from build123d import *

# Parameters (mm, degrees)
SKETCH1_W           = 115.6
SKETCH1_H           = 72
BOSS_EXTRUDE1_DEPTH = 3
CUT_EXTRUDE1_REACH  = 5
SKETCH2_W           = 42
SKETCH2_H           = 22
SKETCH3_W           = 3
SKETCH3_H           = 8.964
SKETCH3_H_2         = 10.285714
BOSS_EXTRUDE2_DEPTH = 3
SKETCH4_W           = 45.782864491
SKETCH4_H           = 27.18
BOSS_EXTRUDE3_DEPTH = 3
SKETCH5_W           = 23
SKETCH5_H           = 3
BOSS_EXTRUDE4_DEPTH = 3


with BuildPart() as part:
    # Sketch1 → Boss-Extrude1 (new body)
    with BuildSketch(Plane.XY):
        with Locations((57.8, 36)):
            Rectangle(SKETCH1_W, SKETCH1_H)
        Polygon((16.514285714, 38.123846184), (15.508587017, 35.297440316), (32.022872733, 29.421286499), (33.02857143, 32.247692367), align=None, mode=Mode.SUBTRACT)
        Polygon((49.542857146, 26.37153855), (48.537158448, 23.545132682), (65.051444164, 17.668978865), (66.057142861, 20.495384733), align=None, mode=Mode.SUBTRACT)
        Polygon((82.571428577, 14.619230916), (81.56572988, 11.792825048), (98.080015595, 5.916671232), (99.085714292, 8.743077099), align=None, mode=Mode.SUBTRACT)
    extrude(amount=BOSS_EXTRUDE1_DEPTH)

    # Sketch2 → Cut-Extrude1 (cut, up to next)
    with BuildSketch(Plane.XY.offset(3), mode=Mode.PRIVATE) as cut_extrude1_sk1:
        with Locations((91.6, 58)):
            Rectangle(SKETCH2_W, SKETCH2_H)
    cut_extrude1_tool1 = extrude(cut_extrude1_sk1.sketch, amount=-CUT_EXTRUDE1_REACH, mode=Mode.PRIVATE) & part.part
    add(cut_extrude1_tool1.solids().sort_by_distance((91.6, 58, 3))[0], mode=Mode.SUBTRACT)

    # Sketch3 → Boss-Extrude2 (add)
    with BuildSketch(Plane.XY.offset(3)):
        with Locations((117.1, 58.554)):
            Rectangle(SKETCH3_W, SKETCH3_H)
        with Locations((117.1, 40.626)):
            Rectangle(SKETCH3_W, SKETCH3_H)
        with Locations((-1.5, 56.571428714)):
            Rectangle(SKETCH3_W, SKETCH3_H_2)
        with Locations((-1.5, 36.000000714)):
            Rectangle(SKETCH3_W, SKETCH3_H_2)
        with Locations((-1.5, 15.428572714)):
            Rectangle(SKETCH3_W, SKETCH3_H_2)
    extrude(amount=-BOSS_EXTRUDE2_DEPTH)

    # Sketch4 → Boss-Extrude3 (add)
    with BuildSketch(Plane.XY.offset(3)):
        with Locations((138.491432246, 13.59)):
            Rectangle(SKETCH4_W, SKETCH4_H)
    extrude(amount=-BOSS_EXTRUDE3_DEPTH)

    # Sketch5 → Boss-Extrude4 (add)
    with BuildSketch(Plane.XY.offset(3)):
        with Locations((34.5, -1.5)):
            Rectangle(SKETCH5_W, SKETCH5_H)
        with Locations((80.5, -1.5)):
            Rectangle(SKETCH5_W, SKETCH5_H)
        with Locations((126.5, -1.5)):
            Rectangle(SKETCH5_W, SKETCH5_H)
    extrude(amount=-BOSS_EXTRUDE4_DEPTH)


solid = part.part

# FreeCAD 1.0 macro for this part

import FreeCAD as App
import Part
import Sketcher

V = App.Vector

doc = App.newDocument("Part")
body = doc.addObject("PartDesign::Body", "Body")

# Sketch on XY plane
sketch1 = body.newObject("Sketcher::SketchObject", "Sketch")
sketch1.AttachmentSupport = (doc.getObject("XY_Plane"), [""])
sketch1.MapMode = "FlatFace"
sketch1.addGeometry([
    Part.LineSegment(V(0, 72, 0), V(0, 0, 0)),  # 0
    Part.LineSegment(V(0, 0, 0), V(115.6, 0, 0)),  # 1
    Part.LineSegment(V(115.6, 0, 0), V(115.6, 72, 0)),  # 2
    Part.LineSegment(V(115.6, 72, 0), V(0, 72, 0)),  # 3
    Part.LineSegment(V(81.6, 11.8, 0), V(82.6, 14.6, 0)),  # 4
    Part.LineSegment(V(82.6, 14.6, 0), V(99.1, 8.7, 0)),  # 5
    Part.LineSegment(V(99.1, 8.7, 0), V(98.1, 5.9, 0)),  # 6
    Part.LineSegment(V(98.1, 5.9, 0), V(81.6, 11.8, 0)),  # 7
    Part.LineSegment(V(48.5, 23.5, 0), V(49.5, 26.4, 0)),  # 8
    Part.LineSegment(V(49.5, 26.4, 0), V(66.1, 20.5, 0)),  # 9
    Part.LineSegment(V(66.1, 20.5, 0), V(65.1, 17.7, 0)),  # 10
    Part.LineSegment(V(65.1, 17.7, 0), V(48.5, 23.5, 0)),  # 11
    Part.LineSegment(V(15.5, 35.3, 0), V(16.5, 38.1, 0)),  # 12
    Part.LineSegment(V(16.5, 38.1, 0), V(33, 32.2, 0)),  # 13
    Part.LineSegment(V(33, 32.2, 0), V(32, 29.4, 0)),  # 14
    Part.LineSegment(V(32, 29.4, 0), V(15.5, 35.3, 0)),  # 15
], False)
sketch1.addConstraint([
    Sketcher.Constraint("Coincident", 0, 2, 1, 1),
    Sketcher.Constraint("Coincident", 1, 2, 2, 1),
    Sketcher.Constraint("Coincident", 2, 2, 3, 1),
    Sketcher.Constraint("Coincident", 3, 2, 0, 1),
    Sketcher.Constraint("Coincident", 4, 2, 5, 1),
    Sketcher.Constraint("Coincident", 5, 2, 6, 1),
    Sketcher.Constraint("Coincident", 6, 2, 7, 1),
    Sketcher.Constraint("Coincident", 7, 2, 4, 1),
    Sketcher.Constraint("Coincident", 8, 2, 9, 1),
    Sketcher.Constraint("Coincident", 9, 2, 10, 1),
    Sketcher.Constraint("Coincident", 10, 2, 11, 1),
    Sketcher.Constraint("Coincident", 11, 2, 8, 1),
    Sketcher.Constraint("Coincident", 12, 2, 13, 1),
    Sketcher.Constraint("Coincident", 13, 2, 14, 1),
    Sketcher.Constraint("Coincident", 14, 2, 15, 1),
    Sketcher.Constraint("Coincident", 15, 2, 12, 1),
    Sketcher.Constraint("Vertical", 0),
    Sketcher.Constraint("Horizontal", 1),
    Sketcher.Constraint("Vertical", 2),
    Sketcher.Constraint("Horizontal", 3),
    Sketcher.Constraint("Coincident", 0, 2, -1, 1),
    Sketcher.Constraint("Perpendicular", 4, 5),
    Sketcher.Constraint("Perpendicular", 5, 6),
    Sketcher.Constraint("Perpendicular", 6, 7),
    Sketcher.Constraint("Perpendicular", 7, 8),
    Sketcher.Constraint("Perpendicular", 8, 9),
    Sketcher.Constraint("Perpendicular", 9, 10),
    Sketcher.Constraint("Perpendicular", 10, 11),
    Sketcher.Constraint("Perpendicular", 11, 12),
    Sketcher.Constraint("Perpendicular", 12, 13),
    Sketcher.Constraint("Perpendicular", 13, 14),
    Sketcher.Constraint("Perpendicular", 14, 15),
    Sketcher.Constraint("Equal", 6, 8),
    Sketcher.Constraint("Equal", 7, 9),
    Sketcher.Constraint("Equal", 10, 12),
    Sketcher.Constraint("Equal", 11, 13),
    Sketcher.Constraint("DistanceY", 0, 2, 0, 1, 72.0),
    Sketcher.Constraint("Distance", 4, 3.0),
    Sketcher.Constraint("DistanceX", 1, 1, 1, 2, 115.6),
    Sketcher.Constraint("DistanceX", 6, 2, 5, 2, 1.005699),
    Sketcher.Constraint("DistanceY", 4, 2, 11, 2, 8.925902),
    Sketcher.Constraint("DistanceY", 8, 2, 15, 2, 8.925902),
    Sketcher.Constraint("Distance", 5, 17.528571),
    Sketcher.Constraint("DistanceX", -1, 1, 4, 2, 82.571429),
    Sketcher.Constraint("DistanceY", -1, 1, 4, 2, 14.619231),
    Sketcher.Constraint("DistanceX", -1, 1, 11, 2, 48.537158),
    Sketcher.Constraint("DistanceX", -1, 1, 13, 2, 33.028571),
])
pad1 = body.newObject("PartDesign::Pad", "Pad")
pad1.Profile = sketch1
pad1.Length = 3

# Sketch on XY plane
sketch2 = body.newObject("Sketcher::SketchObject", "Sketch001")
sketch2.AttachmentSupport = (doc.getObject("XY_Plane"), [""])
sketch2.MapMode = "FlatFace"
sketch2.AttachmentOffset = App.Placement(V(0, 0, 3), App.Rotation())
sketch2.addGeometry([
    Part.LineSegment(V(71, 69, 0), V(71, 47, 0)),
    Part.LineSegment(V(71, 47, 0), V(113, 47, 0)),
    Part.LineSegment(V(113, 47, 0), V(113, 69, 0)),
    Part.LineSegment(V(113, 69, 0), V(71, 69, 0)),
], False)
sketch2.addConstraint([
    Sketcher.Constraint("Coincident", 0, 2, 1, 1),
    Sketcher.Constraint("Coincident", 1, 2, 2, 1),
    Sketcher.Constraint("Coincident", 2, 2, 3, 1),
    Sketcher.Constraint("Coincident", 3, 2, 0, 1),
    Sketcher.Constraint("Vertical", 0),
    Sketcher.Constraint("Horizontal", 1),
    Sketcher.Constraint("Vertical", 2),
    Sketcher.Constraint("Horizontal", 3),
    Sketcher.Constraint("DistanceX", 1, 1, 1, 2, 42.0),
    Sketcher.Constraint("DistanceY", 0, 2, 0, 1, 22.0),
    Sketcher.Constraint("DistanceY", -1, 1, 0, 2, 47.0),
    Sketcher.Constraint("DistanceX", -1, 1, 0, 2, 70.6),
])
pocket1 = body.newObject("PartDesign::Pocket", "Pocket")
pocket1.Profile = sketch2
pocket1.Type = "UpToFirst"

# Sketch on XY plane
sketch3 = body.newObject("Sketcher::SketchObject", "Sketch002")
sketch3.AttachmentSupport = (doc.getObject("XY_Plane"), [""])
sketch3.MapMode = "FlatFace"
sketch3.AttachmentOffset = App.Placement(V(0, 0, 3), App.Rotation())
sketch3.addGeometry([
    Part.LineSegment(V(115.6, 63, 0), V(115.6, 54.1, 0)),  # 0
    Part.LineSegment(V(115.6, 54.1, 0), V(118.6, 54.1, 0)),  # 1
    Part.LineSegment(V(118.6, 54.1, 0), V(118.6, 63, 0)),  # 2
    Part.LineSegment(V(118.6, 63, 0), V(115.6, 63, 0)),  # 3
    Part.LineSegment(V(115.6, 45.1, 0), V(115.6, 36.1, 0)),  # 4
    Part.LineSegment(V(115.6, 36.1, 0), V(118.6, 36.1, 0)),  # 5
    Part.LineSegment(V(118.6, 36.1, 0), V(118.6, 45.1, 0)),  # 6
    Part.LineSegment(V(118.6, 45.1, 0), V(115.6, 45.1, 0)),  # 7
    Part.LineSegment(V(-3, 61.7, 0), V(-3, 51.4, 0)),  # 8
    Part.LineSegment(V(-3, 51.4, 0), V(0, 51.4, 0)),  # 9
    Part.LineSegment(V(0, 51.4, 0), V(0, 61.7, 0)),  # 10
    Part.LineSegment(V(0, 61.7, 0), V(-3, 61.7, 0)),  # 11
    Part.LineSegment(V(-3, 41.1, 0), V(-3, 30.9, 0)),  # 12
    Part.LineSegment(V(-3, 30.9, 0), V(0, 30.9, 0)),  # 13
    Part.LineSegment(V(0, 30.9, 0), V(0, 41.1, 0)),  # 14
    Part.LineSegment(V(0, 41.1, 0), V(-3, 41.1, 0)),  # 15
    Part.LineSegment(V(-3, 20.6, 0), V(-3, 10.3, 0)),  # 16
    Part.LineSegment(V(-3, 10.3, 0), V(0, 10.3, 0)),  # 17
    Part.LineSegment(V(0, 10.3, 0), V(0, 20.6, 0)),  # 18
    Part.LineSegment(V(0, 20.6, 0), V(-3, 20.6, 0)),  # 19
], False)
sketch3.addConstraint([
    Sketcher.Constraint("Coincident", 0, 2, 1, 1),
    Sketcher.Constraint("Coincident", 1, 2, 2, 1),
    Sketcher.Constraint("Coincident", 2, 2, 3, 1),
    Sketcher.Constraint("Coincident", 3, 2, 0, 1),
    Sketcher.Constraint("Coincident", 4, 2, 5, 1),
    Sketcher.Constraint("Coincident", 5, 2, 6, 1),
    Sketcher.Constraint("Coincident", 6, 2, 7, 1),
    Sketcher.Constraint("Coincident", 7, 2, 4, 1),
    Sketcher.Constraint("Coincident", 8, 2, 9, 1),
    Sketcher.Constraint("Coincident", 9, 2, 10, 1),
    Sketcher.Constraint("Coincident", 10, 2, 11, 1),
    Sketcher.Constraint("Coincident", 11, 2, 8, 1),
    Sketcher.Constraint("Coincident", 12, 2, 13, 1),
    Sketcher.Constraint("Coincident", 13, 2, 14, 1),
    Sketcher.Constraint("Coincident", 14, 2, 15, 1),
    Sketcher.Constraint("Coincident", 15, 2, 12, 1),
    Sketcher.Constraint("Coincident", 16, 2, 17, 1),
    Sketcher.Constraint("Coincident", 17, 2, 18, 1),
    Sketcher.Constraint("Coincident", 18, 2, 19, 1),
    Sketcher.Constraint("Coincident", 19, 2, 16, 1),
    Sketcher.Constraint("Vertical", 0),
    Sketcher.Constraint("Horizontal", 1),
    Sketcher.Constraint("Vertical", 2),
    Sketcher.Constraint("Horizontal", 3),
    Sketcher.Constraint("Vertical", 4),
    Sketcher.Constraint("Horizontal", 5),
    Sketcher.Constraint("Vertical", 6),
    Sketcher.Constraint("Horizontal", 7),
    Sketcher.Constraint("Vertical", 8),
    Sketcher.Constraint("Horizontal", 9),
    Sketcher.Constraint("Vertical", 10),
    Sketcher.Constraint("Horizontal", 11),
    Sketcher.Constraint("Vertical", 12),
    Sketcher.Constraint("Horizontal", 13),
    Sketcher.Constraint("Vertical", 14),
    Sketcher.Constraint("Horizontal", 15),
    Sketcher.Constraint("Vertical", 16),
    Sketcher.Constraint("Horizontal", 17),
    Sketcher.Constraint("Vertical", 18),
    Sketcher.Constraint("Horizontal", 19),
    Sketcher.Constraint("PointOnObject", 9, 2, -2),
    Sketcher.Constraint("PointOnObject", 13, 2, -2),
    Sketcher.Constraint("PointOnObject", 17, 2, -2),
    Sketcher.Constraint("Vertical", 3, 2, 4, 2),
    Sketcher.Constraint("Vertical", 2, 2, 5, 2),
    Sketcher.Constraint("Vertical", 11, 2, 12, 2),
    Sketcher.Constraint("Vertical", 15, 2, 16, 2),
    Sketcher.Constraint("Equal", 7, 9),
    Sketcher.Constraint("Equal", 2, 4),
    Sketcher.Constraint("Equal", 10, 12),
    Sketcher.Constraint("Equal", 14, 16),
    Sketcher.Constraint("DistanceX", 1, 1, 1, 2, 3.0),
    Sketcher.Constraint("DistanceX", -1, 1, 0, 2, 115.6),
    Sketcher.Constraint("DistanceY", 0, 2, 0, 1, 8.964),
    Sketcher.Constraint("DistanceY", -1, 1, 0, 2, 54.072),
    Sketcher.Constraint("DistanceY", -1, 1, 4, 2, 36.144),
    Sketcher.Constraint("DistanceY", 8, 2, 8, 1, 10.285714),
    Sketcher.Constraint("DistanceY", -1, 1, 8, 2, 51.428572),
    Sketcher.Constraint("DistanceY", -1, 1, 18, 2, 20.57143),
    Sketcher.Constraint("DistanceY", 12, 2, 8, 2, 20.571428),
])
pad2 = body.newObject("PartDesign::Pad", "Pad001")
pad2.Profile = sketch3
pad2.Length = 3
pad2.Reversed = True

# Sketch on XY plane
sketch4 = body.newObject("Sketcher::SketchObject", "Sketch003")
sketch4.AttachmentSupport = (doc.getObject("XY_Plane"), [""])
sketch4.MapMode = "FlatFace"
sketch4.AttachmentOffset = App.Placement(V(0, 0, 3), App.Rotation())
sketch4.addGeometry([
    Part.LineSegment(V(116, 27, 0), V(116, 0, 0)),
    Part.LineSegment(V(116, 0, 0), V(161, 0, 0)),
    Part.LineSegment(V(161, 0, 0), V(161, 27, 0)),
    Part.LineSegment(V(161, 27, 0), V(116, 27, 0)),
], False)
sketch4.addConstraint([
    Sketcher.Constraint("Coincident", 0, 2, 1, 1),
    Sketcher.Constraint("Coincident", 1, 2, 2, 1),
    Sketcher.Constraint("Coincident", 2, 2, 3, 1),
    Sketcher.Constraint("Coincident", 3, 2, 0, 1),
    Sketcher.Constraint("Vertical", 0),
    Sketcher.Constraint("Horizontal", 1),
    Sketcher.Constraint("Vertical", 2),
    Sketcher.Constraint("Horizontal", 3),
    Sketcher.Constraint("PointOnObject", 0, 2, -1),
    Sketcher.Constraint("DistanceY", 0, 2, 0, 1, 27.18),
    Sketcher.Constraint("DistanceX", -1, 1, 0, 2, 115.6),
    Sketcher.Constraint("DistanceX", 1, 1, 1, 2, 45.782864),
])
pad3 = body.newObject("PartDesign::Pad", "Pad002")
pad3.Profile = sketch4
pad3.Length = 3
pad3.Reversed = True

# Sketch on XY plane
sketch5 = body.newObject("Sketcher::SketchObject", "Sketch004")
sketch5.AttachmentSupport = (doc.getObject("XY_Plane"), [""])
sketch5.MapMode = "FlatFace"
sketch5.AttachmentOffset = App.Placement(V(0, 0, 3), App.Rotation())
sketch5.addGeometry([
    Part.LineSegment(V(23, 0, 0), V(23, -3, 0)),  # 0
    Part.LineSegment(V(23, -3, 0), V(46, -3, 0)),  # 1
    Part.LineSegment(V(46, -3, 0), V(46, 0, 0)),  # 2
    Part.LineSegment(V(46, 0, 0), V(23, 0, 0)),  # 3
    Part.LineSegment(V(69, 0, 0), V(69, -3, 0)),  # 4
    Part.LineSegment(V(69, -3, 0), V(92, -3, 0)),  # 5
    Part.LineSegment(V(92, -3, 0), V(92, 0, 0)),  # 6
    Part.LineSegment(V(92, 0, 0), V(69, 0, 0)),  # 7
    Part.LineSegment(V(115, 0, 0), V(115, -3, 0)),  # 8
    Part.LineSegment(V(115, -3, 0), V(138, -3, 0)),  # 9
    Part.LineSegment(V(138, -3, 0), V(138, 0, 0)),  # 10
    Part.LineSegment(V(138, 0, 0), V(115, 0, 0)),  # 11
], False)
sketch5.addConstraint([
    Sketcher.Constraint("Coincident", 0, 2, 1, 1),
    Sketcher.Constraint("Coincident", 1, 2, 2, 1),
    Sketcher.Constraint("Coincident", 2, 2, 3, 1),
    Sketcher.Constraint("Coincident", 3, 2, 0, 1),
    Sketcher.Constraint("Coincident", 4, 2, 5, 1),
    Sketcher.Constraint("Coincident", 5, 2, 6, 1),
    Sketcher.Constraint("Coincident", 6, 2, 7, 1),
    Sketcher.Constraint("Coincident", 7, 2, 4, 1),
    Sketcher.Constraint("Coincident", 8, 2, 9, 1),
    Sketcher.Constraint("Coincident", 9, 2, 10, 1),
    Sketcher.Constraint("Coincident", 10, 2, 11, 1),
    Sketcher.Constraint("Coincident", 11, 2, 8, 1),
    Sketcher.Constraint("Vertical", 0),
    Sketcher.Constraint("Horizontal", 1),
    Sketcher.Constraint("Vertical", 2),
    Sketcher.Constraint("Horizontal", 3),
    Sketcher.Constraint("Vertical", 4),
    Sketcher.Constraint("Horizontal", 5),
    Sketcher.Constraint("Vertical", 6),
    Sketcher.Constraint("Horizontal", 7),
    Sketcher.Constraint("Vertical", 8),
    Sketcher.Constraint("Horizontal", 9),
    Sketcher.Constraint("Vertical", 10),
    Sketcher.Constraint("Horizontal", 11),
    Sketcher.Constraint("PointOnObject", 2, 2, -1),
    Sketcher.Constraint("PointOnObject", 6, 2, -1),
    Sketcher.Constraint("PointOnObject", 10, 2, -1),
    Sketcher.Constraint("Horizontal", 1, 2, 4, 2),
    Sketcher.Constraint("Horizontal", 5, 2, 8, 2),
    Sketcher.Constraint("Equal", 3, 5),
    Sketcher.Constraint("Equal", 7, 9),
    Sketcher.Constraint("DistanceX", 1, 1, 1, 2, 23.0),
    Sketcher.Constraint("DistanceY", 0, 2, 0, 1, 3.0),
    Sketcher.Constraint("DistanceX", -1, 1, 0, 2, 23.0),
    Sketcher.Constraint("DistanceX", -1, 1, 4, 2, 69.0),
    Sketcher.Constraint("DistanceX", -1, 1, 8, 2, 115.0),
])
pad4 = body.newObject("PartDesign::Pad", "Pad003")
pad4.Profile = sketch5
pad4.Length = 3
pad4.Reversed = True

doc.recompute()
